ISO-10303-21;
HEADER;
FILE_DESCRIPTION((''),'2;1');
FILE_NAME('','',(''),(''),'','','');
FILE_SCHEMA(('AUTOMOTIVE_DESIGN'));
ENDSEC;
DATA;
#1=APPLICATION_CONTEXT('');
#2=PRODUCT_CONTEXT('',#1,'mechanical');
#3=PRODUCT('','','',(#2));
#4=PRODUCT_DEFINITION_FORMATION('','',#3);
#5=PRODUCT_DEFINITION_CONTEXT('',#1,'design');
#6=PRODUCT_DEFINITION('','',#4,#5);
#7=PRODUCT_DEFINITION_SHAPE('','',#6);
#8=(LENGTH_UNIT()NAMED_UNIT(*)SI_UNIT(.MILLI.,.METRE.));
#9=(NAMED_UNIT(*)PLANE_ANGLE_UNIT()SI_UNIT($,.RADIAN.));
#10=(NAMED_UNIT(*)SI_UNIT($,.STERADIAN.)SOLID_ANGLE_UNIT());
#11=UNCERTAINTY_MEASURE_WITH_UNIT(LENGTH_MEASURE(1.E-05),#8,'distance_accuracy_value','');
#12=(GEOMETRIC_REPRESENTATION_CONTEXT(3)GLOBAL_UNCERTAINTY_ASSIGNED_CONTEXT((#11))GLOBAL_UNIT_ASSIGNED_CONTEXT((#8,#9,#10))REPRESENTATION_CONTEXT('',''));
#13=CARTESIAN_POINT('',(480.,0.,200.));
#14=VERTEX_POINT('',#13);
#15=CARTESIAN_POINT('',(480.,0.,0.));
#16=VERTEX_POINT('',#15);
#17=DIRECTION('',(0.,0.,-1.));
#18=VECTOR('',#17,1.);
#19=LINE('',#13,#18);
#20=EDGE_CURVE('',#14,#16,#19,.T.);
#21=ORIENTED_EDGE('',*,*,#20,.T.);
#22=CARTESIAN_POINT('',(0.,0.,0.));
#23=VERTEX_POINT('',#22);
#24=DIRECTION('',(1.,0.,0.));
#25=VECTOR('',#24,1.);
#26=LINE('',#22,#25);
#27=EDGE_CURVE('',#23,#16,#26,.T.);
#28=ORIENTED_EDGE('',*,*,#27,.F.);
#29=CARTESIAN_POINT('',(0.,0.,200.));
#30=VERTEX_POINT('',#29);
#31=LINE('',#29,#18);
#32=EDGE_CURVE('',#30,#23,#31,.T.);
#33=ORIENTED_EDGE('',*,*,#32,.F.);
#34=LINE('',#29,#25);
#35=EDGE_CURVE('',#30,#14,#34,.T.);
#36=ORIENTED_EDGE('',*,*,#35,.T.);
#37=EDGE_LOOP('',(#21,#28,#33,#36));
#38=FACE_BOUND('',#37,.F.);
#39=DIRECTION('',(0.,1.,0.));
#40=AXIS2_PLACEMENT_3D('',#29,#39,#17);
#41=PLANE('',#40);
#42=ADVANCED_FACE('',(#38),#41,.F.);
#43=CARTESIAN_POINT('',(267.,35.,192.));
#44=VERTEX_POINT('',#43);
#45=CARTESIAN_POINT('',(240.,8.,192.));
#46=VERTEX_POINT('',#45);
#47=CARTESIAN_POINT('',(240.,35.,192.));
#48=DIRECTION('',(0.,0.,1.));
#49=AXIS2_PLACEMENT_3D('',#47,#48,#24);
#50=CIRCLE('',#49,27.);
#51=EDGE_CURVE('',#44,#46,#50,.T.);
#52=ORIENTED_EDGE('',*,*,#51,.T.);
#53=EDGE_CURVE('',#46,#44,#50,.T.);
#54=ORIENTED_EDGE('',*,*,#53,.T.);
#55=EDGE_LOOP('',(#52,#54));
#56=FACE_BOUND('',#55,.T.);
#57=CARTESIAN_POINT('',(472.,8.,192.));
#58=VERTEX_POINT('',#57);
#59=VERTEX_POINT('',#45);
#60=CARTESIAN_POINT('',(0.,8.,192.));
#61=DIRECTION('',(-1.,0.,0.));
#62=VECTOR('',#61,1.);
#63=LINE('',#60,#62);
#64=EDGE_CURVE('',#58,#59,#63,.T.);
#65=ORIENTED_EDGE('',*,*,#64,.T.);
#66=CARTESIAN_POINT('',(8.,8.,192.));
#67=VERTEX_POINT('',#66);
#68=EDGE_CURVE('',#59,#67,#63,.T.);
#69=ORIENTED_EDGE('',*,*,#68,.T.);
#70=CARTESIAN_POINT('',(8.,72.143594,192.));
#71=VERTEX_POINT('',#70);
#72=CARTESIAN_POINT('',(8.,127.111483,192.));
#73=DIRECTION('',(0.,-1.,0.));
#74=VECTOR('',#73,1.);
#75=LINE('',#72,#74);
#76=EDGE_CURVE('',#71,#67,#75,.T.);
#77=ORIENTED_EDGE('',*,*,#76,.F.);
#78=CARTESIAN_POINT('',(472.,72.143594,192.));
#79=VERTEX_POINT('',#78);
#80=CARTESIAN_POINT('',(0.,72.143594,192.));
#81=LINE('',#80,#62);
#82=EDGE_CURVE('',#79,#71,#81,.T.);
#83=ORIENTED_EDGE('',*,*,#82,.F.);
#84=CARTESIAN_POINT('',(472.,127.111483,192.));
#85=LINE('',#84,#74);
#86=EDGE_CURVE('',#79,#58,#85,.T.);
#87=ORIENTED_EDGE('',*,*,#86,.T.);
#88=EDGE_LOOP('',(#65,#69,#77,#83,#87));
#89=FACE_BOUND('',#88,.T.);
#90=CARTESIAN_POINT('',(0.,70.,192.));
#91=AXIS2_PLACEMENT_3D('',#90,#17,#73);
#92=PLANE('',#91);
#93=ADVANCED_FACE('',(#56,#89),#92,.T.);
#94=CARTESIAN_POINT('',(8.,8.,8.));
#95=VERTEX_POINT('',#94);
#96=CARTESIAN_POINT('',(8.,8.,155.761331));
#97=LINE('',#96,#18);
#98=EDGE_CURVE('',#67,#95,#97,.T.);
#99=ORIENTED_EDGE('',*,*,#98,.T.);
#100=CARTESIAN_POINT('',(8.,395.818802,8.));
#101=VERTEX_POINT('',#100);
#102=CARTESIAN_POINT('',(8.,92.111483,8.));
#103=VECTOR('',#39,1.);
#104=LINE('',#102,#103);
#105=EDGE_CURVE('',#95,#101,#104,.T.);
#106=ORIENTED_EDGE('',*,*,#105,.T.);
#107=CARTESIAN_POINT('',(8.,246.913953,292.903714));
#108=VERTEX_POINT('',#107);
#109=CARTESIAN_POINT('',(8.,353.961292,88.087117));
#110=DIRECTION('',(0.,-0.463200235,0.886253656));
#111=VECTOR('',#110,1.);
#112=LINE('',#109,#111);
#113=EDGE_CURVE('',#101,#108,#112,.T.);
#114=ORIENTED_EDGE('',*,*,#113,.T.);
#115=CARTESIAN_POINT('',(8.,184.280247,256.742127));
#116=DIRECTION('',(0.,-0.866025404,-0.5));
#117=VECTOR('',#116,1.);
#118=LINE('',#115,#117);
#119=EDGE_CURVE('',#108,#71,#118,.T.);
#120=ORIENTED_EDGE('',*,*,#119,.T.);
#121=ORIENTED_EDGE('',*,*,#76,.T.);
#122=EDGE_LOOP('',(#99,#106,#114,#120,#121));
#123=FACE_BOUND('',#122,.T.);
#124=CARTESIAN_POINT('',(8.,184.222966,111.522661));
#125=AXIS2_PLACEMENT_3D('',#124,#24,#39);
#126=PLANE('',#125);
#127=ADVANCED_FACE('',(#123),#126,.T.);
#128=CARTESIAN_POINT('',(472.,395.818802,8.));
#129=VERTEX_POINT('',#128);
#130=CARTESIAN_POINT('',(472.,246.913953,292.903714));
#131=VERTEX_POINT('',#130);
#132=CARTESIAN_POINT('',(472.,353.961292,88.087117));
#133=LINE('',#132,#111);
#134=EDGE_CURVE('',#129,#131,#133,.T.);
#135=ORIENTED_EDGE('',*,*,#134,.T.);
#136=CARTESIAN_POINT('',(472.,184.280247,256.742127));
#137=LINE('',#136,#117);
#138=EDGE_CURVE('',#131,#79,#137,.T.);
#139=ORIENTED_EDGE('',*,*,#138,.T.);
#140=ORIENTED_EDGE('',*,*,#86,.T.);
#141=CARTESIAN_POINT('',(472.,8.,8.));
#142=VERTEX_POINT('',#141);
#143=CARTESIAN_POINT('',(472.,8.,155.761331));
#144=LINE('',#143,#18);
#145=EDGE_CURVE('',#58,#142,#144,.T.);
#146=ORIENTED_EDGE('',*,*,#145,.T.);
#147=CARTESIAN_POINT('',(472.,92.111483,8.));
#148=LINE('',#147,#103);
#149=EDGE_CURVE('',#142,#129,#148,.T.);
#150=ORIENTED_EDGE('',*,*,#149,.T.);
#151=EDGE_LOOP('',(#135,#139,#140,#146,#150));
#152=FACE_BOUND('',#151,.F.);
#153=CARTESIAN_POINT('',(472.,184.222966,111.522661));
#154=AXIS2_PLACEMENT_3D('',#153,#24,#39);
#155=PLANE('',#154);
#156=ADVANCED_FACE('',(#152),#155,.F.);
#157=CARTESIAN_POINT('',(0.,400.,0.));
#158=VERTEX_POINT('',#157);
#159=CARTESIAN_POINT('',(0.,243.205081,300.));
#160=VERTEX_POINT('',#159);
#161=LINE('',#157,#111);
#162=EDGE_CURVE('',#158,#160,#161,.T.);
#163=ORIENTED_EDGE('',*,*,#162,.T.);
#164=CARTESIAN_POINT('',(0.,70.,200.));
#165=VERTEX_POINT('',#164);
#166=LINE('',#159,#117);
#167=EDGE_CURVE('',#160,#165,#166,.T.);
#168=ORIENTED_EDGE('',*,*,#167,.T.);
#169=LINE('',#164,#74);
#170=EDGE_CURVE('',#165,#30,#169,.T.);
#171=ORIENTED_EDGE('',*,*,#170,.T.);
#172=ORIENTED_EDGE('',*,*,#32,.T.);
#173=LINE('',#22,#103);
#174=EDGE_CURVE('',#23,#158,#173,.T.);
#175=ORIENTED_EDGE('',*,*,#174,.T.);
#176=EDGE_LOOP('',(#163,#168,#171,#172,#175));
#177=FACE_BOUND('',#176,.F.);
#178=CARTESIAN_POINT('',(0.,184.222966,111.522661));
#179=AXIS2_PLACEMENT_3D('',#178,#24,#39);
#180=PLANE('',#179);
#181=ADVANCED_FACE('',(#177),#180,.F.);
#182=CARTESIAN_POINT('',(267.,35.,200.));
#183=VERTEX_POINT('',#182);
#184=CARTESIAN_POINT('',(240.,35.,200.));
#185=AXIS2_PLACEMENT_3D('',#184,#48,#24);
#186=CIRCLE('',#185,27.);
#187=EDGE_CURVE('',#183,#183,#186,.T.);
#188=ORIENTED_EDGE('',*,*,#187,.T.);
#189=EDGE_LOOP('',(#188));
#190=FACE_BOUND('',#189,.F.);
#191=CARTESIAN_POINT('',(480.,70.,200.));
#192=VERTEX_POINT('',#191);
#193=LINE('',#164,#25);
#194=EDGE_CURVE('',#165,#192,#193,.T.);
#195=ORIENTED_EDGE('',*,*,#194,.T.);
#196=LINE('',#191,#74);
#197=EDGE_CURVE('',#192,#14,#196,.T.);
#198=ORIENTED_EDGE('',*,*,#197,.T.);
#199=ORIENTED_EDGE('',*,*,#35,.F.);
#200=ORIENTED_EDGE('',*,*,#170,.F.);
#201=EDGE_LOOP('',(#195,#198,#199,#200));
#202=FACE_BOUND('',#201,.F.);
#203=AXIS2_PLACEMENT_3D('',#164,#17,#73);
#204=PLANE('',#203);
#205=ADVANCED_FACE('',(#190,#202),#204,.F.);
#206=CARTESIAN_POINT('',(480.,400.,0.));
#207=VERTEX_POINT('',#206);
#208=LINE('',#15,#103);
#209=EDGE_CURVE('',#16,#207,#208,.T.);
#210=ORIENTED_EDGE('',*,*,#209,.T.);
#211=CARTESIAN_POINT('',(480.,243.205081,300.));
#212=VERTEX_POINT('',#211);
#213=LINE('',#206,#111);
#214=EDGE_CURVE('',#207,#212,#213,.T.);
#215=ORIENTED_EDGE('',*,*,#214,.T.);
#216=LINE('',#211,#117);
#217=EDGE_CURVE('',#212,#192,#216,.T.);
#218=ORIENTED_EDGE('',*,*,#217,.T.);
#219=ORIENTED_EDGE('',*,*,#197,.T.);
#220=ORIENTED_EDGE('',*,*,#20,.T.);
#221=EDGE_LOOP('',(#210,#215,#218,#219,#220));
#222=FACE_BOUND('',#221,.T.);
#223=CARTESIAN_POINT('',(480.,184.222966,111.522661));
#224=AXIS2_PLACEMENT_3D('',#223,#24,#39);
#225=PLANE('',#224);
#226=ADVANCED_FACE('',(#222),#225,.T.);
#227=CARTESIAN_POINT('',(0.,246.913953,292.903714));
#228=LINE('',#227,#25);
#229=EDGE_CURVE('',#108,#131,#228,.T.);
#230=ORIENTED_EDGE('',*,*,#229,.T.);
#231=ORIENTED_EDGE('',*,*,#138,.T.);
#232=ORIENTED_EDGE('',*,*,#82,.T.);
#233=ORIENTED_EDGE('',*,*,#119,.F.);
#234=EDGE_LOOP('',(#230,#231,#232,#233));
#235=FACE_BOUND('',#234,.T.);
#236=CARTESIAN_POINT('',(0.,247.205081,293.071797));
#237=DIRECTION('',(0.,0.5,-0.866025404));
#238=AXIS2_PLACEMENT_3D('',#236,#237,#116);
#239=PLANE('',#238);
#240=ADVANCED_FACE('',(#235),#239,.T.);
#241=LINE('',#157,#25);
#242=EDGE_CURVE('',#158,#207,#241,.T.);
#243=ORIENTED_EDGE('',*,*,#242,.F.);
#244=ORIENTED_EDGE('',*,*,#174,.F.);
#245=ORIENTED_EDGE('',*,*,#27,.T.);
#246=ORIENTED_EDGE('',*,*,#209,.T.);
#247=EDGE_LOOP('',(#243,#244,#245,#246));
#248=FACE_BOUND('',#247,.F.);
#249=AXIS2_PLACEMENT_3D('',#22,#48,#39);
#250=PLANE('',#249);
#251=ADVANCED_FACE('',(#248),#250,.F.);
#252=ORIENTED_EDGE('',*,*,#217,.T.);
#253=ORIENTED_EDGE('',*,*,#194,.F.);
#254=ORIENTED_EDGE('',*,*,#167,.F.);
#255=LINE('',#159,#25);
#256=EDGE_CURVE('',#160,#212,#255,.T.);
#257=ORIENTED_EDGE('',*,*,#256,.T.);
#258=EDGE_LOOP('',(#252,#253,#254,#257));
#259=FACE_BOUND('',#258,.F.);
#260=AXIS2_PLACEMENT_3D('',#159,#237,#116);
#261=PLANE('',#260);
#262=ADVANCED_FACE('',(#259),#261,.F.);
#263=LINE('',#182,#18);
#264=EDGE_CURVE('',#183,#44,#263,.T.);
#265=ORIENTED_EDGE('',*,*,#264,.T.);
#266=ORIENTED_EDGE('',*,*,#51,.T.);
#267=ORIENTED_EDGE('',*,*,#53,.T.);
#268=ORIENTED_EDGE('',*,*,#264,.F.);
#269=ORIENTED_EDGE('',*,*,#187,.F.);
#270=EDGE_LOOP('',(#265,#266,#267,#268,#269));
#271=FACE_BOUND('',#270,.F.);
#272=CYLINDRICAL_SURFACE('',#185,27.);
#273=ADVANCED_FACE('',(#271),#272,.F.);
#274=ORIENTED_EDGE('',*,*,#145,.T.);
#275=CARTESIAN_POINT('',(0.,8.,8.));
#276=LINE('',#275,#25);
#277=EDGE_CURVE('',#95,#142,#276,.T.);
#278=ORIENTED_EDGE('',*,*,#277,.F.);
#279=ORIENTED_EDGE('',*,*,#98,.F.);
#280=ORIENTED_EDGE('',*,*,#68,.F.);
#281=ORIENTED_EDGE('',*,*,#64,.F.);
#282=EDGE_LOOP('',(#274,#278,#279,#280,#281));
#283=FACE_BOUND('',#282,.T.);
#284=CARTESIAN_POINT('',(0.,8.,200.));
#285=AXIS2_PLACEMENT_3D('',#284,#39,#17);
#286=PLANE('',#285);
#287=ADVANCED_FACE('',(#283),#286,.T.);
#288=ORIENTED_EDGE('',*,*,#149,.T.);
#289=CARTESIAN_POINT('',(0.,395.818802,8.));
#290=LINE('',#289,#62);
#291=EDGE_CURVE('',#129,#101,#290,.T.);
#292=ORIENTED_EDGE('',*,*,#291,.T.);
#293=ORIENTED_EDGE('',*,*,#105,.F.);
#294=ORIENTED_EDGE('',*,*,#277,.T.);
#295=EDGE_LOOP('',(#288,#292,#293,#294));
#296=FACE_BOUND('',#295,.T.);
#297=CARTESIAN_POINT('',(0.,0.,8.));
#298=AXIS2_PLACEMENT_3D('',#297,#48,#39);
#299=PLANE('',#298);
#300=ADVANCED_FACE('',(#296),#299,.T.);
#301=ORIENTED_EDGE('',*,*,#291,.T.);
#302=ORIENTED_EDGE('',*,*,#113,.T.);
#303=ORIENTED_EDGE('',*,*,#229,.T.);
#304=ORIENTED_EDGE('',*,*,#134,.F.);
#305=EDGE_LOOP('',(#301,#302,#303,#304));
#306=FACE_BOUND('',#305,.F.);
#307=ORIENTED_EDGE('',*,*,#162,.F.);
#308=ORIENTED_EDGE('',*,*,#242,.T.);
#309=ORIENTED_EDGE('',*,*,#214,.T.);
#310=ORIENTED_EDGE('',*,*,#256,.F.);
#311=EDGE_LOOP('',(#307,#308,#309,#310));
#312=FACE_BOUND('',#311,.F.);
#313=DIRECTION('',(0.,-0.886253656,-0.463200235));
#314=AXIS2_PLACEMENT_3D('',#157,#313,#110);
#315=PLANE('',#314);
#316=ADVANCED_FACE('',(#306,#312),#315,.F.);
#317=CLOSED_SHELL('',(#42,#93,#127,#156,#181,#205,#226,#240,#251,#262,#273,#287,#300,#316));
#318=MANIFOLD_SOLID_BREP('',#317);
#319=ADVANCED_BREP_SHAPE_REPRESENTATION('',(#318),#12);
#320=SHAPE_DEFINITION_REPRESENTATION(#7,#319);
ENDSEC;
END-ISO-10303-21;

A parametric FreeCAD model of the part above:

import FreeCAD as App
import Part
import Sketcher
from FreeCAD import Vector
Q = App.Units.Quantity


def faces_at(feature, points):
    """Names of the faces that lie closest to the given points."""
    faces = feature.Shape.Faces
    near = lambda p: min(range(len(faces)), key=lambda i: faces[i].distToShape(Part.Vertex(*p))[0])
    return sorted({f"Face{near(p) + 1}" for p in points})

doc = App.newDocument("Part")
body = doc.addObject("PartDesign::Body", "Body")

sketch1 = body.newObject("Sketcher::SketchObject", "Sketch")
sketch1.AttachmentSupport = (doc.getObject("YZ_Plane"), [""])
sketch1.MapMode = "FlatFace"
sketch1.addGeometry(Part.LineSegment(Vector(0, 200, 0), Vector(0, 0, 0)), False)
sketch1.addGeometry(Part.LineSegment(Vector(0, 0, 0), Vector(400, 0, 0)), False)
sketch1.addGeometry(Part.LineSegment(Vector(400, 0, 0), Vector(243, 300, 0)), False)
sketch1.addGeometry(Part.LineSegment(Vector(243, 300, 0), Vector(70, 200, 0)), False)
sketch1.addGeometry(Part.LineSegment(Vector(70, 200, 0), Vector(0, 200, 0)), False)
sketch1.addConstraint(Sketcher.Constraint("Coincident", 0, 2, 1, 1))
sketch1.addConstraint(Sketcher.Constraint("Coincident", 1, 2, 2, 1))
sketch1.addConstraint(Sketcher.Constraint("Coincident", 2, 2, 3, 1))
sketch1.addConstraint(Sketcher.Constraint("Coincident", 3, 2, 4, 1))
sketch1.addConstraint(Sketcher.Constraint("Coincident", 4, 2, 0, 1))
sketch1.addConstraint(Sketcher.Constraint("Vertical", 0))
sketch1.addConstraint(Sketcher.Constraint("Horizontal", 1))
sketch1.addConstraint(Sketcher.Constraint("Horizontal", 4))
sketch1.addConstraint(Sketcher.Constraint("Coincident", 0, 2, -1, 1))
sketch1.addConstraint(Sketcher.Constraint("DistanceX", 1, 1, 1, 2, Q("400 mm")))
sketch1.addConstraint(Sketcher.Constraint("DistanceX", 4, 2, 4, 1, Q("70 mm")))
sketch1.addConstraint(Sketcher.Constraint("DistanceY", 0, 2, 0, 1, Q("200 mm")))
sketch1.addConstraint(Sketcher.Constraint("Angle", 3, Q("-150 deg")))
sketch1.addConstraint(Sketcher.Constraint("Distance", 3, Q("200 mm")))
pad1 = body.newObject("PartDesign::Pad", "Pad")
pad1.Profile = sketch1
pad1.Length = 480
doc.recompute()

thickness = body.newObject("PartDesign::Thickness", "Thickness")
thickness.Base = (pad1, faces_at(pad1, [(240, 321.603, 150)]))
thickness.Value = 8
thickness.Reversed = True
thickness.Join = "Intersection"

sketch2 = body.newObject("Sketcher::SketchObject", "Sketch001")
sketch2.AttachmentSupport = (doc.getObject("XY_Plane"), [""])
sketch2.MapMode = "FlatFace"
sketch2.AttachmentOffset = App.Placement(Vector(0, 0, 200), App.Rotation())
sketch2.addGeometry(Part.Circle(Vector(240, 35, 0), Vector(0, 0, 1), 27), False)
sketch2.addConstraint(Sketcher.Constraint("Diameter", 0, Q("54 mm")))
sketch2.addConstraint(Sketcher.Constraint("DistanceX", -1, 1, 0, 3, Q("240 mm")))
sketch2.addConstraint(Sketcher.Constraint("DistanceY", -1, 1, 0, 3, Q("35 mm")))
pocket1 = body.newObject("PartDesign::Pocket", "Pocket")
pocket1.Profile = sketch2
pocket1.Length = 25

doc.recompute()
